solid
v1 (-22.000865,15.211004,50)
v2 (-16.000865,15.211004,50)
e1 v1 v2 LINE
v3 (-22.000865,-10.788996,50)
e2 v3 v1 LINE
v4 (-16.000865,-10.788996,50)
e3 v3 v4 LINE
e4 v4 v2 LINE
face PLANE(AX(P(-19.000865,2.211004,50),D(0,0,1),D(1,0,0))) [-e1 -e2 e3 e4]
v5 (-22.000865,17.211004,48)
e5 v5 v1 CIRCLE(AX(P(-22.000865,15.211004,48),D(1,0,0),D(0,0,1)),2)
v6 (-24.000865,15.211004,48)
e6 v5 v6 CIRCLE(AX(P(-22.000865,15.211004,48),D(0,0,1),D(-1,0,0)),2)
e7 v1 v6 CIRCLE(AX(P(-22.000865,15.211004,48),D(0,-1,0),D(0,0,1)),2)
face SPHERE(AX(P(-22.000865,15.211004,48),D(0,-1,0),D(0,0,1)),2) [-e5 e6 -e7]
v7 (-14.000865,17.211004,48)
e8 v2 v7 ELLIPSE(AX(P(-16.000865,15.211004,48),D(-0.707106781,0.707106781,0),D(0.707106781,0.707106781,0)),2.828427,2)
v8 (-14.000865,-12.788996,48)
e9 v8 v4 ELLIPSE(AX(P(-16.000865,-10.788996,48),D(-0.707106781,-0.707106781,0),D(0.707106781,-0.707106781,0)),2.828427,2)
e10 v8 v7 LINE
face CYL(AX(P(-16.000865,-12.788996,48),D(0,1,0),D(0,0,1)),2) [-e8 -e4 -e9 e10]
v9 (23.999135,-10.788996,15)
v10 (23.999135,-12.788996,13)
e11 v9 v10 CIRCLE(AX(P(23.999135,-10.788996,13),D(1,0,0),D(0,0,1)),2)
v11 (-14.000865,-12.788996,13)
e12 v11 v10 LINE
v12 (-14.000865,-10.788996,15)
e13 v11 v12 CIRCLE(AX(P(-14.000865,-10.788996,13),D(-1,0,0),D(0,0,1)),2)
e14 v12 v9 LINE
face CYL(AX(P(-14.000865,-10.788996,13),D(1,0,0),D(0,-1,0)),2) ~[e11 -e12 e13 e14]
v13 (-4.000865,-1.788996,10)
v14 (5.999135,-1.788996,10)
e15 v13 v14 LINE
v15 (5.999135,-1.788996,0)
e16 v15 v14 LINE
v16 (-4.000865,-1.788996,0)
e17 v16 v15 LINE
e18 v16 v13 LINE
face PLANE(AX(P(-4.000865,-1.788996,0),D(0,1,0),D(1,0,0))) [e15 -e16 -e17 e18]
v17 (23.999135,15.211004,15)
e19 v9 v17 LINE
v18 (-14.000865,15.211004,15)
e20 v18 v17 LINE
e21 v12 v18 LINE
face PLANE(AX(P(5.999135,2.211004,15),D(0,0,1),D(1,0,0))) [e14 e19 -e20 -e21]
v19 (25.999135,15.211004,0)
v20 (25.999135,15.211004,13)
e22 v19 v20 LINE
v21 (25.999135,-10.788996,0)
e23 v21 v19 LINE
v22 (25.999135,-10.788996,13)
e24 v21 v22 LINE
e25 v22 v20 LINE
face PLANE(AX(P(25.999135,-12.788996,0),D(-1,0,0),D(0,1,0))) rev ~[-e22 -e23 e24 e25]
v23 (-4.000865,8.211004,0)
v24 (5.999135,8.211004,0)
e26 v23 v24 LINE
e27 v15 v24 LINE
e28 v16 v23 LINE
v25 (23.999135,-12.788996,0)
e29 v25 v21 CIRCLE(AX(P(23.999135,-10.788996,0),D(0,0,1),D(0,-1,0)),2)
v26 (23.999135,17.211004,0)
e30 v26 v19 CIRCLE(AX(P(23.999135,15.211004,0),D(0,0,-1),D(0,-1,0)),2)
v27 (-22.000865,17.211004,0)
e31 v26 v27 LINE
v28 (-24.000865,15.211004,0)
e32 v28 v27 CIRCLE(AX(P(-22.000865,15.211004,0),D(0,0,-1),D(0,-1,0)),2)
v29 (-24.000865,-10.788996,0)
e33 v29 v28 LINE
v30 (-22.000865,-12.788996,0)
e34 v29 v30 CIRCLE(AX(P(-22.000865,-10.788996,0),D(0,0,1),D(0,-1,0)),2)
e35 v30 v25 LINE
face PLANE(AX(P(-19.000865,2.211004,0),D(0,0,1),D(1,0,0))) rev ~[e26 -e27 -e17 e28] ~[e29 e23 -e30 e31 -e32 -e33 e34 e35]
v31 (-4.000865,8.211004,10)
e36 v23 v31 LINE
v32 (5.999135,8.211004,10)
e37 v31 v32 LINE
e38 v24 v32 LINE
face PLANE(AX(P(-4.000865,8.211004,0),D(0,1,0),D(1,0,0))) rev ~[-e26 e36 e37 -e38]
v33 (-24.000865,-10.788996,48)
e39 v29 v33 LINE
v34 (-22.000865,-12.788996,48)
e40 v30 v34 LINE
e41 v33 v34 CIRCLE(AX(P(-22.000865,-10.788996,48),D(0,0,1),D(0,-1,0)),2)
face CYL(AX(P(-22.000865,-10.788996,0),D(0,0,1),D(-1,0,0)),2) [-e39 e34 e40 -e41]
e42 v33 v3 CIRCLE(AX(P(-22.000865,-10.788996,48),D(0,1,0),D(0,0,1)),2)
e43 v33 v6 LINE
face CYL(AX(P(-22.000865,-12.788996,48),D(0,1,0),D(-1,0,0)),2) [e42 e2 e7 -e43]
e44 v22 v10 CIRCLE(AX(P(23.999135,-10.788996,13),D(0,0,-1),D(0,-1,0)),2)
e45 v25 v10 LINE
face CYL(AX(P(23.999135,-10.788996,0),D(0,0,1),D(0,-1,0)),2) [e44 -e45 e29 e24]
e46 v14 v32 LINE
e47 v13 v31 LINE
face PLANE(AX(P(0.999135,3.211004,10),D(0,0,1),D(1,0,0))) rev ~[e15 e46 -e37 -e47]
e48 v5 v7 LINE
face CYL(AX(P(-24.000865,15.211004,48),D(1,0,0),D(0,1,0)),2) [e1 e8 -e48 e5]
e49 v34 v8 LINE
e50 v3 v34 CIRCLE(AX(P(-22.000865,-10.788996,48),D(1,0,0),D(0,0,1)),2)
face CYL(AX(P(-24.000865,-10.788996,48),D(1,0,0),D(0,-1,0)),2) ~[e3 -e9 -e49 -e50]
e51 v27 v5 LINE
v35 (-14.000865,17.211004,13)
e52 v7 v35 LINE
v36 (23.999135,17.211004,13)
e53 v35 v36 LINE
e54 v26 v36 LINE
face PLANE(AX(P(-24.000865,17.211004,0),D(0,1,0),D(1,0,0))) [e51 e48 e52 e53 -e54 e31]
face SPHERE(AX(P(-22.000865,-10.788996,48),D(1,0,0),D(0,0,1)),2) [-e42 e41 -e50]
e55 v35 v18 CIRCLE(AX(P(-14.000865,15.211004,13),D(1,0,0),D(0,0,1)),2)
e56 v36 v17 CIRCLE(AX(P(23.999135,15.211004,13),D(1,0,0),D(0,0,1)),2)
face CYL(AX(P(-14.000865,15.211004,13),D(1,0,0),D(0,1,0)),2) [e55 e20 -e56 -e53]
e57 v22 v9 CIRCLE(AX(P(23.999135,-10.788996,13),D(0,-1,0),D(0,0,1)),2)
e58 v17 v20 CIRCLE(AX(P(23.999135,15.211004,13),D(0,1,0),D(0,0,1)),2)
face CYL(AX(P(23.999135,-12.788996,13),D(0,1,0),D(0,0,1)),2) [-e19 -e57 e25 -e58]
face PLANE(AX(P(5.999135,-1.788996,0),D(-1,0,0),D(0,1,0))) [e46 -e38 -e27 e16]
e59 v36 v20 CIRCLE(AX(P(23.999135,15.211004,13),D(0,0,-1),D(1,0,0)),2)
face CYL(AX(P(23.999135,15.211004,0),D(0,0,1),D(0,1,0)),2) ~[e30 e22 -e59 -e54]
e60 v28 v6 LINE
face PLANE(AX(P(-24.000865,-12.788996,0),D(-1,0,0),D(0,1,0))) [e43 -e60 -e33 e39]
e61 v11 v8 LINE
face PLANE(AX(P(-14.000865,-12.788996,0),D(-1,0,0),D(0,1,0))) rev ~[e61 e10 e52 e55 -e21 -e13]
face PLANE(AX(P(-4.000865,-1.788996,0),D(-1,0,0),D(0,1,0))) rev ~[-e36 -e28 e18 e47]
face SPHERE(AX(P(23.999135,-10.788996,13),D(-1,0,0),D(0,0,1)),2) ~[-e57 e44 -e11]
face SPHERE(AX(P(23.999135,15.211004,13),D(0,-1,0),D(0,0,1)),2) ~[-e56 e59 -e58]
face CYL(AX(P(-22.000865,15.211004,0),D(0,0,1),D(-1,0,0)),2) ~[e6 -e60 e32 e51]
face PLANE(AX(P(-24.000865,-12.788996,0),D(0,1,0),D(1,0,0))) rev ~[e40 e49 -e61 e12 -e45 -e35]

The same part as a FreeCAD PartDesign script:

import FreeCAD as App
import Part
import Sketcher


def edges_at(feature, points):
    """Names of the edges that pass closest to the given points."""
    edges = feature.Shape.Edges
    near = lambda p: min(range(len(edges)), key=lambda i: edges[i].distToShape(Part.Vertex(*p))[0])
    return sorted({f"Edge{near(p) + 1}" for p in points})

doc = App.newDocument("Part")
body = doc.addObject("PartDesign::Body", "Body")

# Sketch on XY plane
sketch1 = doc.addObject("Sketcher::SketchObject", "Sketch")
body.addObject(sketch1)
sketch1.AttachmentSupport = (doc.XY_Plane, [""])
sketch1.MapMode = "FlatFace"
sketch1.addGeometry(Part.LineSegment(App.Vector(-14.000865, 17.211004, 0), App.Vector(-14.000865, -12.788996, 0)), False)
sketch1.addGeometry(Part.LineSegment(App.Vector(-14.000865, -12.788996, 0), App.Vector(25.999135, -12.788996, 0)), False)
sketch1.addGeometry(Part.LineSegment(App.Vector(25.999135, -12.788996, 0), App.Vector(25.999135, 17.211004, 0)), False)
sketch1.addGeometry(Part.LineSegment(App.Vector(25.999135, 17.211004, 0), App.Vector(-14.000865, 17.211004, 0)), False)
sketch1.addConstraint(Sketcher.Constraint("Coincident", 0, 2, 1, 1))
sketch1.addConstraint(Sketcher.Constraint("Coincident", 1, 2, 2, 1))
sketch1.addConstraint(Sketcher.Constraint("Coincident", 2, 2, 3, 1))
sketch1.addConstraint(Sketcher.Constraint("Coincident", 3, 2, 0, 1))
sketch1.addConstraint(Sketcher.Constraint("Vertical", 0))
sketch1.addConstraint(Sketcher.Constraint("Horizontal", 1))
sketch1.addConstraint(Sketcher.Constraint("Vertical", 2))
sketch1.addConstraint(Sketcher.Constraint("Horizontal", 3))
sketch1.addConstraint(Sketcher.Constraint("DistanceX", 1, 1, 1, 2, 40.0))
sketch1.addConstraint(Sketcher.Constraint("DistanceY", 0, 2, 0, 1, 30.0))
sketch1.addConstraint(Sketcher.Constraint("DistanceX", 0, 2, -1, 1, 14.000865))
sketch1.addConstraint(Sketcher.Constraint("DistanceY", 0, 2, -1, 1, 12.788996))
pad1 = doc.addObject("PartDesign::Pad", "Pad")
body.addObject(pad1)
pad1.Profile = sketch1
pad1.Length = 15

# Sketch on XY plane
sketch2 = doc.addObject("Sketcher::SketchObject", "Sketch001")
body.addObject(sketch2)
sketch2.AttachmentSupport = (doc.XY_Plane, [""])
sketch2.MapMode = "FlatFace"
sketch2.addGeometry(Part.LineSegment(App.Vector(-24.000865, 17.211004, 0), App.Vector(-24.000865, -12.788996, 0)), False)
sketch2.addGeometry(Part.LineSegment(App.Vector(-24.000865, -12.788996, 0), App.Vector(-14.000865, -12.788996, 0)), False)
sketch2.addGeometry(Part.LineSegment(App.Vector(-14.000865, -12.788996, 0), App.Vector(-14.000865, 17.211004, 0)), False)
sketch2.addGeometry(Part.LineSegment(App.Vector(-14.000865, 17.211004, 0), App.Vector(-24.000865, 17.211004, 0)), False)
sketch2.addConstraint(Sketcher.Constraint("Coincident", 0, 2, 1, 1))
sketch2.addConstraint(Sketcher.Constraint("Coincident", 1, 2, 2, 1))
sketch2.addConstraint(Sketcher.Constraint("Coincident", 2, 2, 3, 1))
sketch2.addConstraint(Sketcher.Constraint("Coincident", 3, 2, 0, 1))
sketch2.addConstraint(Sketcher.Constraint("Vertical", 0))
sketch2.addConstraint(Sketcher.Constraint("Horizontal", 1))
sketch2.addConstraint(Sketcher.Constraint("Vertical", 2))
sketch2.addConstraint(Sketcher.Constraint("Horizontal", 3))
sketch2.addConstraint(Sketcher.Constraint("DistanceX", 1, 1, 1, 2, 10.0))
sketch2.addConstraint(Sketcher.Constraint("DistanceY", 0, 2, 0, 1, 30.0))
sketch2.addConstraint(Sketcher.Constraint("DistanceX", 0, 2, -1, 1, 24.000865))
sketch2.addConstraint(Sketcher.Constraint("DistanceY", 0, 2, -1, 1, 12.788996))
pad2 = doc.addObject("PartDesign::Pad", "Pad001")
body.addObject(pad2)
pad2.Profile = sketch2
pad2.Length = 50

# Sketch on XY plane
sketch3 = doc.addObject("Sketcher::SketchObject", "Sketch002")
body.addObject(sketch3)
sketch3.AttachmentSupport = (doc.XY_Plane, [""])
sketch3.MapMode = "FlatFace"
sketch3.addGeometry(Part.LineSegment(App.Vector(-4.000865, 8.211004, 0), App.Vector(-4.000865, -1.788996, 0)), False)
sketch3.addGeometry(Part.LineSegment(App.Vector(-4.000865, -1.788996, 0), App.Vector(5.999135, -1.788996, 0)), False)
sketch3.addGeometry(Part.LineSegment(App.Vector(5.999135, -1.788996, 0), App.Vector(5.999135, 8.211004, 0)), False)
sketch3.addGeometry(Part.LineSegment(App.Vector(5.999135, 8.211004, 0), App.Vector(-4.000865, 8.211004, 0)), False)
sketch3.addConstraint(Sketcher.Constraint("Coincident", 0, 2, 1, 1))
sketch3.addConstraint(Sketcher.Constraint("Coincident", 1, 2, 2, 1))
sketch3.addConstraint(Sketcher.Constraint("Coincident", 2, 2, 3, 1))
sketch3.addConstraint(Sketcher.Constraint("Coincident", 3, 2, 0, 1))
sketch3.addConstraint(Sketcher.Constraint("Vertical", 0))
sketch3.addConstraint(Sketcher.Constraint("Horizontal", 1))
sketch3.addConstraint(Sketcher.Constraint("Vertical", 2))
sketch3.addConstraint(Sketcher.Constraint("Horizontal", 3))
sketch3.addConstraint(Sketcher.Constraint("Equal", 3, 0))
sketch3.addConstraint(Sketcher.Constraint("DistanceX", 1, 1, 1, 2, 10.0))
sketch3.addConstraint(Sketcher.Constraint("DistanceX", 0, 2, -1, 1, 4.000865))
sketch3.addConstraint(Sketcher.Constraint("DistanceY", 0, 2, -1, 1, 1.788996))
pocket1 = doc.addObject("PartDesign::Pocket", "Pocket")
body.addObject(pocket1)
pocket1.Profile = sketch3
pocket1.Length = 10
pocket1.Reversed = True
doc.recompute()

fillet = doc.addObject("PartDesign::Fillet", "Fillet")
body.addObject(fillet)
fillet.Base = (pocket1, edges_at(pocket1, [
    (-19.001, -12.789, 50),
    (-14.001, 2.211, 50),
    (-24.001, 2.211, 50),
    (-19.001, 17.211, 50),
    (5.999, -12.789, 15),
    (25.999, 2.211, 15),
    (5.999, 17.211, 15),
    (25.999, 17.211, 7.5),
    (25.999, -12.789, 7.5),
    (-24.001, 17.211, 25),
    (-24.001, -12.789, 25),
]))
fillet.Radius = 2

doc.recompute()
